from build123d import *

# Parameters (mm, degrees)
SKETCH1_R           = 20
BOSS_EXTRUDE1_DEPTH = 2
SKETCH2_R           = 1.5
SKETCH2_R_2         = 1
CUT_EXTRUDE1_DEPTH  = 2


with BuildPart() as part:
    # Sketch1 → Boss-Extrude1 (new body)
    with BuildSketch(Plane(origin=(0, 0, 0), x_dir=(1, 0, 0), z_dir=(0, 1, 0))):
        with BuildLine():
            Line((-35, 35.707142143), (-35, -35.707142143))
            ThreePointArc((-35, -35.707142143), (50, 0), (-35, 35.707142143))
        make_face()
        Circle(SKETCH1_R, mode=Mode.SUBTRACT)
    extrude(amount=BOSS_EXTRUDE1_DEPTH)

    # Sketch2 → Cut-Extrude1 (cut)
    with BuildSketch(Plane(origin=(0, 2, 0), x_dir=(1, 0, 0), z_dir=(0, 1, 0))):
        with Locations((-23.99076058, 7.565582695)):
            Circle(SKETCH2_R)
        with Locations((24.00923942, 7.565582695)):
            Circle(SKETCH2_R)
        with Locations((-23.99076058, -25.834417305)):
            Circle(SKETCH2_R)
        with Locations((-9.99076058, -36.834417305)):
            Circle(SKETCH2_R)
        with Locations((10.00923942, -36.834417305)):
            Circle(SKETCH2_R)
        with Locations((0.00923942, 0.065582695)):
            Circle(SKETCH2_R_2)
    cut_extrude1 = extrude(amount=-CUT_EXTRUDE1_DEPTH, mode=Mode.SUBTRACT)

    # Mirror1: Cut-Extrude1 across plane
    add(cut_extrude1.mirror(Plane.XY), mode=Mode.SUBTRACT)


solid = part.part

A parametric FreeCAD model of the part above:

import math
import FreeCAD as App
import Part
import Sketcher
from FreeCAD import Vector
Q = App.Units.Quantity

doc = App.newDocument("Part")
body = doc.addObject("PartDesign::Body", "Body")

sketch1 = body.newObject("Sketcher::SketchObject", "Sketch")
sketch1.AttachmentSupport = (doc.getObject("XZ_Plane"), [""])
sketch1.MapMode = "FlatFace"
sketch1.addGeometry([
    Part.LineSegment(Vector(-35, -35.707142, 0), Vector(-35, 35.707142, 0)),
    Part.ArcOfCircle(Part.Circle(Vector(0, 0, 0), Vector(0, 0, 1), 50), math.radians(-134.427004), math.radians(134.427004)),
    Part.Circle(Vector(0, 0, 0), Vector(0, 0, 1), 20),
], False)
sketch1.addConstraint([
    Sketcher.Constraint("Coincident", 0, 1, 1, 1),
    Sketcher.Constraint("Coincident", 1, 2, 0, 2),
    Sketcher.Constraint("Vertical", 0),
    Sketcher.Constraint("Coincident", 1, 3, -1, 1),
    Sketcher.Constraint("Coincident", 2, 3, -1, 1),
    Sketcher.Constraint("Diameter", 2, Q("40 mm")),
    Sketcher.Constraint("Radius", 1, Q("50 mm")),
    Sketcher.Constraint("DistanceX", 0, 1, -1, 1, Q("35 mm")),
])
pad1 = body.newObject("PartDesign::Pad", "Pad")
pad1.Profile = sketch1
pad1.Length = 2
pad1.Reversed = True

sketch2 = body.newObject("Sketcher::SketchObject", "Sketch001")
sketch2.AttachmentSupport = (doc.getObject("XZ_Plane"), [""])
sketch2.MapMode = "FlatFace"
sketch2.AttachmentOffset = App.Placement(Vector(0, 0, -2), App.Rotation())
sketch2.addGeometry([
    Part.Circle(Vector(-23.990761, -7.565583, 0), Vector(0, 0, 1), 1.5),
    Part.Circle(Vector(24.009239, -7.565583, 0), Vector(0, 0, 1), 1.5),
    Part.Circle(Vector(-23.990761, 25.834417, 0), Vector(0, 0, 1), 1.5),
    Part.Circle(Vector(-9.990761, 36.834417, 0), Vector(0, 0, 1), 1.5),
    Part.Circle(Vector(10.009239, 36.834417, 0), Vector(0, 0, 1), 1.5),
    Part.Circle(Vector(0.009239, -0.065583, 0), Vector(0, 0, 1), 1),
], False)
sketch2.addConstraint([
    Sketcher.Constraint("Equal", 0, 1),
    Sketcher.Constraint("Equal", 1, 2),
    Sketcher.Constraint("Equal", 2, 3),
    Sketcher.Constraint("Equal", 3, 4),
    Sketcher.Constraint("Horizontal", 0, 3, 1, 3),
    Sketcher.Constraint("Horizontal", 3, 3, 4, 3),
    Sketcher.Constraint("Vertical", 0, 3, 2, 3),
    Sketcher.Constraint("Diameter", 0, Q("3 mm")),
    Sketcher.Constraint("Diameter", 5, Q("2 mm")),
    Sketcher.Constraint("DistanceX", 0, 3, 1, 3, Q("48 mm")),
    Sketcher.Constraint("DistanceX", 2, 3, 3, 3, Q("14 mm")),
    Sketcher.Constraint("DistanceY", 2, 3, 3, 3, Q("11 mm")),
    Sketcher.Constraint("DistanceX", 3, 3, 4, 3, Q("20 mm")),
    Sketcher.Constraint("DistanceX", 0, 3, 5, 3, Q("24 mm")),
    Sketcher.Constraint("DistanceY", 0, 3, 2, 3, Q("33.4 mm")),
    Sketcher.Constraint("DistanceY", 0, 3, 5, 3, Q("7.5 mm")),
    Sketcher.Constraint("DistanceX", 0, 3, -1, 1, Q("23.990761 mm")),
    Sketcher.Constraint("DistanceY", 0, 3, -1, 1, Q("7.565583 mm")),
])
pocket1 = body.newObject("PartDesign::Pocket", "Pocket")
pocket1.Profile = sketch2
pocket1.Length = 2
pocket1.Reversed = True
doc.recompute()

mirrored = body.newObject("PartDesign::Mirrored", "Mirrored")
mirrored.Originals = [pocket1]
mirrored.MirrorPlane = (doc.getObject("XY_Plane"), [""])
body.Tip = mirrored

doc.recompute()
